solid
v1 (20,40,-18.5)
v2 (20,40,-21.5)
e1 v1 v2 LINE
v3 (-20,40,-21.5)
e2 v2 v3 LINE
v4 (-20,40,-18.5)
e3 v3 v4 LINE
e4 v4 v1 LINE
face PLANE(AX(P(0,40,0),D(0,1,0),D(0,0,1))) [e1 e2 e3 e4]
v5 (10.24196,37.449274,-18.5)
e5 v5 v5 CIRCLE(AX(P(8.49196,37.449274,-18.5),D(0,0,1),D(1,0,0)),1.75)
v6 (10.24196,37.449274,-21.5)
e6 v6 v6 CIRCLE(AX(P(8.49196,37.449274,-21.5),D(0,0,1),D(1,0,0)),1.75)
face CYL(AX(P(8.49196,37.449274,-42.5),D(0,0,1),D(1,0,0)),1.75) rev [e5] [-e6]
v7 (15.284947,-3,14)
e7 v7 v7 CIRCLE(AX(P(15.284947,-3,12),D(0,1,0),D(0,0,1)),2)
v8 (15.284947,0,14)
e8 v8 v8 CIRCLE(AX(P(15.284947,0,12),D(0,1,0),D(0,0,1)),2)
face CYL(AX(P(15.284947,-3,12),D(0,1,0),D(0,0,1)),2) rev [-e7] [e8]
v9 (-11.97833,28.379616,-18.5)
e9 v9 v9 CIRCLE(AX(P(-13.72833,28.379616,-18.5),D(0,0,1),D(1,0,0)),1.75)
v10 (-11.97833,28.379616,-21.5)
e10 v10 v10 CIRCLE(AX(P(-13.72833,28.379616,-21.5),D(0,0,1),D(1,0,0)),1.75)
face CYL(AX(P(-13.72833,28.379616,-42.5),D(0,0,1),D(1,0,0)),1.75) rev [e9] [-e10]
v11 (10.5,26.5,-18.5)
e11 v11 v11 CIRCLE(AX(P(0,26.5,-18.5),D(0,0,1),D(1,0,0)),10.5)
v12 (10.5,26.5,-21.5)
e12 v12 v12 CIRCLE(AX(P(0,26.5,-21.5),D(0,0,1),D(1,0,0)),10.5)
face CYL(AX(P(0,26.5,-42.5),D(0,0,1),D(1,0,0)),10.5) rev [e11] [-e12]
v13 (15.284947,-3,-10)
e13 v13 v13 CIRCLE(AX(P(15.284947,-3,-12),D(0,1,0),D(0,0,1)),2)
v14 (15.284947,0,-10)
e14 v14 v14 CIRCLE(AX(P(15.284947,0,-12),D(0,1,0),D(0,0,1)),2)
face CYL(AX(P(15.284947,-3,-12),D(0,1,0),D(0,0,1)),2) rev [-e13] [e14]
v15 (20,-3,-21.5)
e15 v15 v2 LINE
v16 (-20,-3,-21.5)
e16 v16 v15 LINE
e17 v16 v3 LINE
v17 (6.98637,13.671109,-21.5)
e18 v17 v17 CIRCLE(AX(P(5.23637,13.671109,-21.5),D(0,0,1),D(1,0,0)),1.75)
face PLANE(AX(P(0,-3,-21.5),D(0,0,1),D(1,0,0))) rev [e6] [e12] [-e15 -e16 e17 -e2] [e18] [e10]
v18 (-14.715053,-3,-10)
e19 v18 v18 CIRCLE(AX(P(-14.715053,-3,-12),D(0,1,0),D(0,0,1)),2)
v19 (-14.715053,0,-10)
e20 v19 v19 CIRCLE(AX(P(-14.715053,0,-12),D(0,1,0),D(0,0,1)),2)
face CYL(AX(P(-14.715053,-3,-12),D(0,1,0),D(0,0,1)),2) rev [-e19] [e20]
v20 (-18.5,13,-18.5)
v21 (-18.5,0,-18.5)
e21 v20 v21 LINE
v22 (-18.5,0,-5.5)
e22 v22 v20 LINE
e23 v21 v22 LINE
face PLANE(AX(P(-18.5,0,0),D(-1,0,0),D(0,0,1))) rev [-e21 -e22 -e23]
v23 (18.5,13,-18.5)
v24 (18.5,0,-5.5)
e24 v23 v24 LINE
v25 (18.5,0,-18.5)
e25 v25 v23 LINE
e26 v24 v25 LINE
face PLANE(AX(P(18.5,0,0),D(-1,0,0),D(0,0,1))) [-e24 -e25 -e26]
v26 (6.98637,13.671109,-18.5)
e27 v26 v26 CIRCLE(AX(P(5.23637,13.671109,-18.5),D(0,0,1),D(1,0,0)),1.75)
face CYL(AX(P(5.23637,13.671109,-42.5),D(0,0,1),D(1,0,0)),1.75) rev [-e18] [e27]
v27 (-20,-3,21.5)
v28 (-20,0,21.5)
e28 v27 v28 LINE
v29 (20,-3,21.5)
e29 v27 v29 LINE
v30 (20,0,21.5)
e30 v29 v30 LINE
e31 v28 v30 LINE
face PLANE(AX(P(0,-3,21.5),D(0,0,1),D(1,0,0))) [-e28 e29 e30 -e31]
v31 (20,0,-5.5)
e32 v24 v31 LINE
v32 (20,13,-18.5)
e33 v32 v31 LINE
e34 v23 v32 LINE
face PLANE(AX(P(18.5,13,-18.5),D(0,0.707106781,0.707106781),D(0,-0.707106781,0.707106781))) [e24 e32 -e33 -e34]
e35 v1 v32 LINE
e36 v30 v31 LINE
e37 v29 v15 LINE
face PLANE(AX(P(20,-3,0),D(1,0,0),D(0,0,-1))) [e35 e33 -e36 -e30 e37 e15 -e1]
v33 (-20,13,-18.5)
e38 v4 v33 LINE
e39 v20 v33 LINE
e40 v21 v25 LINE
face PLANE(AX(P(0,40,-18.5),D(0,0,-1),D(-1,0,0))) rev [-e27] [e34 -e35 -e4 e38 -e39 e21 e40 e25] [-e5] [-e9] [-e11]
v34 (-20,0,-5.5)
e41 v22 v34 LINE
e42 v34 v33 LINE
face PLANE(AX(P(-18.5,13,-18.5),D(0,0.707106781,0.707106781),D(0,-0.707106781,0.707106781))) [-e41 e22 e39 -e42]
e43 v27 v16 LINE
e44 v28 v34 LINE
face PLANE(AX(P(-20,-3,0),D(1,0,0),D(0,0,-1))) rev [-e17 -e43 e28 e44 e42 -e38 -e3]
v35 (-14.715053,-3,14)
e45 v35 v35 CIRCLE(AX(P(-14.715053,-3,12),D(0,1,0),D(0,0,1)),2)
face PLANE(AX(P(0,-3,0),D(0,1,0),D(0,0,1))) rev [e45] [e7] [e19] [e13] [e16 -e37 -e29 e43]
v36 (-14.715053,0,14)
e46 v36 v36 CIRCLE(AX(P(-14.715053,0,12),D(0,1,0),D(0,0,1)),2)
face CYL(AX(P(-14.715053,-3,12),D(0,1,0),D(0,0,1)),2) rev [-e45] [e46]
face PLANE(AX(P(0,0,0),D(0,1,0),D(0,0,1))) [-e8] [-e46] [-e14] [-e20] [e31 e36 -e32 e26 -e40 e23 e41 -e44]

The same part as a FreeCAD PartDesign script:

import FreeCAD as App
import Part
import Sketcher
from FreeCAD import Vector
Q = App.Units.Quantity

doc = App.newDocument("Part")
body = doc.addObject("PartDesign::Body", "Body")

# Sketch on XZ plane
sketch1 = body.newObject("Sketcher::SketchObject", "Sketch")
sketch1.AttachmentSupport = (doc.getObject("XZ_Plane"), [""])
sketch1.MapMode = "FlatFace"
sketch1.addGeometry([
    Part.LineSegment(Vector(-20, -21.5, 0), Vector(-20, 21.5, 0)),  # 0
    Part.LineSegment(Vector(-20, 21.5, 0), Vector(20, 21.5, 0)),  # 1
    Part.LineSegment(Vector(20, 21.5, 0), Vector(20, -21.5, 0)),  # 2
    Part.LineSegment(Vector(20, -21.5, 0), Vector(-20, -21.5, 0)),  # 3
    Part.Circle(Vector(-14.7, 12, 0), Vector(0, 0, 1), 2),  # 4
    Part.Circle(Vector(15.3, 12, 0), Vector(0, 0, 1), 2),  # 5
    Part.Circle(Vector(-14.7, -12, 0), Vector(0, 0, 1), 2),  # 6
    Part.Circle(Vector(15.3, -12, 0), Vector(0, 0, 1), 2),  # 7
], False)
sketch1.addConstraint([
    Sketcher.Constraint("Coincident", 0, 2, 1, 1),
    Sketcher.Constraint("Coincident", 1, 2, 2, 1),
    Sketcher.Constraint("Coincident", 2, 2, 3, 1),
    Sketcher.Constraint("Coincident", 3, 2, 0, 1),
    Sketcher.Constraint("Vertical", 0),
    Sketcher.Constraint("Horizontal", 1),
    Sketcher.Constraint("Vertical", 2),
    Sketcher.Constraint("Horizontal", 3),
    Sketcher.Constraint("Equal", 4, 5),
    Sketcher.Constraint("Equal", 5, 6),
    Sketcher.Constraint("Equal", 6, 7),
    Sketcher.Constraint("Symmetric", 0, 2, 2, 2, -1, 1),
    Sketcher.Constraint("Symmetric", 4, 3, 6, 3, -1),
    Sketcher.Constraint("Symmetric", 5, 3, 7, 3, -1),
    Sketcher.Constraint("Horizontal", 4, 3, 5, 3),
    Sketcher.Constraint("Diameter", 4, Q("4 mm")),
    Sketcher.Constraint("DistanceX", 1, 1, 1, 2, Q("40 mm")),
    Sketcher.Constraint("DistanceY", 0, 1, 0, 2, Q("43 mm")),
    Sketcher.Constraint("DistanceY", -1, 1, 4, 3, Q("12 mm")),
    Sketcher.Constraint("DistanceX", 4, 3, 5, 3, Q("30 mm")),
    Sketcher.Constraint("DistanceX", 4, 3, -1, 1, Q("14.715053 mm")),
])
pad1 = body.newObject("PartDesign::Pad", "Pad")
pad1.Profile = sketch1
pad1.Length = 3

# Sketch on XZ plane
sketch2 = body.newObject("Sketcher::SketchObject", "Sketch001")
sketch2.AttachmentSupport = (doc.getObject("XZ_Plane"), [""])
sketch2.MapMode = "FlatFace"
sketch2.addGeometry([
    Part.LineSegment(Vector(-20, -21.5, 0), Vector(-20, -18.5, 0)),
    Part.LineSegment(Vector(-20, -18.5, 0), Vector(20, -18.5, 0)),
    Part.LineSegment(Vector(20, -18.5, 0), Vector(20, -21.5, 0)),
    Part.LineSegment(Vector(20, -21.5, 0), Vector(-20, -21.5, 0)),
], False)
sketch2.addConstraint([
    Sketcher.Constraint("Coincident", 0, 2, 1, 1),
    Sketcher.Constraint("Coincident", 1, 2, 2, 1),
    Sketcher.Constraint("Coincident", 2, 2, 3, 1),
    Sketcher.Constraint("Coincident", 3, 2, 0, 1),
    Sketcher.Constraint("Vertical", 0),
    Sketcher.Constraint("Horizontal", 1),
    Sketcher.Constraint("Vertical", 2),
    Sketcher.Constraint("Horizontal", 3),
    Sketcher.Constraint("DistanceX", 1, 1, 1, 2, Q("40 mm")),
    Sketcher.Constraint("DistanceY", 0, 1, 0, 2, Q("3 mm")),
    Sketcher.Constraint("DistanceX", 0, 2, -1, 1, Q("20 mm")),
    Sketcher.Constraint("DistanceY", 0, 2, -1, 1, Q("18.5 mm")),
])
pad2 = body.newObject("PartDesign::Pad", "Pad001")
pad2.Profile = sketch2
pad2.Length = 40
pad2.Reversed = True

# Sketch on XY plane
sketch3 = body.newObject("Sketcher::SketchObject", "Sketch002")
sketch3.AttachmentSupport = (doc.getObject("XY_Plane"), [""])
sketch3.MapMode = "FlatFace"
sketch3.AttachmentOffset = App.Placement(Vector(0, 0, -18.5), App.Rotation())
sketch3.addGeometry([
    Part.Circle(Vector(8.5, 37.4, 0), Vector(0, 0, 1), 1.8),
    Part.Circle(Vector(-13.7, 28.4, 0), Vector(0, 0, 1), 1.8),
    Part.Circle(Vector(5.2, 13.7, 0), Vector(0, 0, 1), 1.8),
    Part.Circle(Vector(0, 26.5, 0), Vector(0, 0, 1), 10.5),
], False)
sketch3.addConstraint([
    Sketcher.Constraint("Equal", 0, 1),
    Sketcher.Constraint("Equal", 1, 2),
    Sketcher.Constraint("PointOnObject", 3, 3, -2),
    Sketcher.Constraint("Diameter", 3, Q("21 mm")),
    Sketcher.Constraint("Diameter", 0, Q("3.5 mm")),
    Sketcher.Constraint("DistanceY", -1, 1, 3, 3, Q("26.5 mm")),
    Sketcher.Constraint("DistanceX", 1, 3, 2, 3, Q("18.9647 mm")),
    Sketcher.Constraint("DistanceX", -1, 1, 0, 3, Q("8.49196 mm")),
    Sketcher.Constraint("DistanceX", 1, 3, -1, 1, Q("13.72833 mm")),
    Sketcher.Constraint("DistanceY", -1, 1, 2, 3, Q("13.671109 mm")),
    Sketcher.Constraint("DistanceY", 1, 3, 0, 3, Q("9.069658 mm")),
    Sketcher.Constraint("DistanceY", -1, 1, 0, 3, Q("37.449274 mm")),
])
pocket1 = body.newObject("PartDesign::Pocket", "Pocket")
pocket1.Profile = sketch3
pocket1.Length = 24

# Sketch on YZ plane
sketch4 = body.newObject("Sketcher::SketchObject", "Sketch003")
sketch4.AttachmentSupport = (doc.getObject("YZ_Plane"), [""])
sketch4.MapMode = "FlatFace"
sketch4.AttachmentOffset = App.Placement(Vector(0, 0, 20), App.Rotation())
sketch4.addGeometry([
    Part.LineSegment(Vector(0, -18, 0), Vector(13, -18, 0)),
    Part.LineSegment(Vector(13, -18, 0), Vector(0, -6, 0)),
    Part.LineSegment(Vector(0, -6, 0), Vector(0, -18, 0)),
], False)
sketch4.addConstraint([
    Sketcher.Constraint("Coincident", 0, 2, 1, 1),
    Sketcher.Constraint("Coincident", 1, 2, 2, 1),
    Sketcher.Constraint("Coincident", 2, 2, 0, 1),
    Sketcher.Constraint("Horizontal", 0),
    Sketcher.Constraint("Vertical", 2),
    Sketcher.Constraint("PointOnObject", 1, 2, -2),
    Sketcher.Constraint("Equal", 0, 2),
    Sketcher.Constraint("DistanceX", 0, 1, 0, 2, Q("13 mm")),
    Sketcher.Constraint("DistanceY", 0, 2, -1, 1, Q("18.5 mm")),
])
pad3 = body.newObject("PartDesign::Pad", "Pad002")
pad3.Profile = sketch4
pad3.Length = 1.5
pad3.Reversed = True

# Sketch on YZ plane
sketch5 = body.newObject("Sketcher::SketchObject", "Sketch004")
sketch5.AttachmentSupport = (doc.getObject("YZ_Plane"), [""])
sketch5.MapMode = "FlatFace"
sketch5.AttachmentOffset = App.Placement(Vector(0, 0, -20), App.Rotation())
sketch5.addGeometry([
    Part.LineSegment(Vector(13, -18, 0), Vector(0, -18, 0)),
    Part.LineSegment(Vector(0, -18, 0), Vector(0, -6, 0)),
    Part.LineSegment(Vector(0, -6, 0), Vector(13, -18, 0)),
], False)
sketch5.addConstraint([
    Sketcher.Constraint("Coincident", 0, 2, 1, 1),
    Sketcher.Constraint("Coincident", 1, 2, 2, 1),
    Sketcher.Constraint("Coincident", 2, 2, 0, 1),
    Sketcher.Constraint("Horizontal", 0),
    Sketcher.Constraint("Vertical", 1),
    Sketcher.Constraint("PointOnObject", 0, 2, -2),
    Sketcher.Constraint("Equal", 0, 1),
    Sketcher.Constraint("DistanceX", 0, 2, 0, 1, Q("13 mm")),
    Sketcher.Constraint("DistanceY", 0, 2, -1, 1, Q("18.5 mm")),
])
pad4 = body.newObject("PartDesign::Pad", "Pad003")
pad4.Profile = sketch5
pad4.Length = 1.5

doc.recompute()
